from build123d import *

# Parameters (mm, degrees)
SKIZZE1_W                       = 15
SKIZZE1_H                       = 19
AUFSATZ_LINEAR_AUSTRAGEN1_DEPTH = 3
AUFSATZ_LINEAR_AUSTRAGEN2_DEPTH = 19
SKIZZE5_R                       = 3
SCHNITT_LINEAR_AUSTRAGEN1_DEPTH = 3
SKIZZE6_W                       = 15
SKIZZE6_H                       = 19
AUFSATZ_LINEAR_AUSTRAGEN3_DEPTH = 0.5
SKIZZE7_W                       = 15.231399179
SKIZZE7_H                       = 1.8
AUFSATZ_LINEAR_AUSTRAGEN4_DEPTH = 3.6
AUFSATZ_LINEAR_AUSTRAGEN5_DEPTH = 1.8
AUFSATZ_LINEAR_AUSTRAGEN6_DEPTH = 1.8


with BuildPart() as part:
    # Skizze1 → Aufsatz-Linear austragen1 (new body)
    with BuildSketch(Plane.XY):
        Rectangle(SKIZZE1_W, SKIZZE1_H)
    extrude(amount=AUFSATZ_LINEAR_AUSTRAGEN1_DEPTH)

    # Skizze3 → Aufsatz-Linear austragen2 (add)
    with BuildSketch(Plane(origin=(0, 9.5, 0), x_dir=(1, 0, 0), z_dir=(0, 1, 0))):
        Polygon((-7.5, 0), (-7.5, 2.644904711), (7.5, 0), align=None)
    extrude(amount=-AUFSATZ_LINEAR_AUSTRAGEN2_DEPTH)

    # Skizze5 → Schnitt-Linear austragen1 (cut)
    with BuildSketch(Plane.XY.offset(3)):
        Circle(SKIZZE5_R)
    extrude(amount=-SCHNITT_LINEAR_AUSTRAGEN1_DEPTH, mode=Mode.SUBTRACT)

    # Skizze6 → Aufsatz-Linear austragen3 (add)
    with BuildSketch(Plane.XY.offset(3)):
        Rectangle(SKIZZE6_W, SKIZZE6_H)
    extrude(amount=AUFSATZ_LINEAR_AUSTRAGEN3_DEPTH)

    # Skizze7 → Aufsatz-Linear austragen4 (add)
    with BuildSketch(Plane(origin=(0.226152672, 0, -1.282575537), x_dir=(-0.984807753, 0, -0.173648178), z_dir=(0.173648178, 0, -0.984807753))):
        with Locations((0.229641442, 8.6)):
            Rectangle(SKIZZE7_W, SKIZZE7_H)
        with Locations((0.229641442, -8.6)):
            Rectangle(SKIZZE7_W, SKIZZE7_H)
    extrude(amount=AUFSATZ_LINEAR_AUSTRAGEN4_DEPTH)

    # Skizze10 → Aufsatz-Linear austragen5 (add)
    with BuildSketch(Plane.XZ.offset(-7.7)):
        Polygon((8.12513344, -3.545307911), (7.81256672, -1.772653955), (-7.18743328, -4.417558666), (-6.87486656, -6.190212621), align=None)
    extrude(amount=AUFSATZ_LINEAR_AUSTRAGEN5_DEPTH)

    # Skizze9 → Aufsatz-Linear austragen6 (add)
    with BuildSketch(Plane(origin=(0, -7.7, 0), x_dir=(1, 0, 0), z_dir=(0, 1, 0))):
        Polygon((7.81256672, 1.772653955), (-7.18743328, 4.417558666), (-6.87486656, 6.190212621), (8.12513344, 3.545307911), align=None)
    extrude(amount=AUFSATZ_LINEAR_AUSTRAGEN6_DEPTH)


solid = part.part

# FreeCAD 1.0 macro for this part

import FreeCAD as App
import Part
import Sketcher

V = App.Vector
Q = App.Units.Quantity


def add_polygon(sketch, points):
    """Adds a closed chain of lines whose ends are joined by coincident constraints."""
    first, n = sketch.GeometryCount, len(points)
    for a, b in zip(points, points[1:] + points[:1]):
        sketch.addGeometry(Part.LineSegment(App.Vector(*a, 0), App.Vector(*b, 0)), False)
    for i in range(n):
        sketch.addConstraint(Sketcher.Constraint("Coincident", first + i, 2, first + (i + 1) % n, 1))

doc = App.newDocument("Part")
body = doc.addObject("PartDesign::Body", "Body")

# Sketch on XY plane
sketch1 = body.newObject("Sketcher::SketchObject", "Sketch")
sketch1.AttachmentSupport = (doc.getObject("XY_Plane"), [""])
sketch1.MapMode = "FlatFace"
add_polygon(sketch1, [(-8, 10), (-8, -10), (8, -10), (8, 10)])  # lines 0-3
sketch1.addConstraint(Sketcher.Constraint("Vertical", 0))
sketch1.addConstraint(Sketcher.Constraint("Horizontal", 1))
sketch1.addConstraint(Sketcher.Constraint("Vertical", 2))
sketch1.addConstraint(Sketcher.Constraint("Horizontal", 3))
sketch1.addConstraint(Sketcher.Constraint("Symmetric", 0, 2, 2, 2, -1, 1))
sketch1.addConstraint(Sketcher.Constraint("DistanceX", 1, 1, 1, 2, Q("15 mm")))
sketch1.addConstraint(Sketcher.Constraint("DistanceY", 0, 2, 0, 1, Q("19 mm")))
pad1 = body.newObject("PartDesign::Pad", "Pad")
pad1.Profile = sketch1
pad1.Length = 3

# Sketch on XZ plane
sketch2 = body.newObject("Sketcher::SketchObject", "Sketch001")
sketch2.AttachmentSupport = (doc.getObject("XZ_Plane"), [""])
sketch2.MapMode = "FlatFace"
sketch2.AttachmentOffset = App.Placement(V(0, 0, -9.5), App.Rotation())
add_polygon(sketch2, [(-7.5, -2.6), (-7.5, 0), (7.5, 0)])  # lines 0-2
sketch2.addConstraint(Sketcher.Constraint("Vertical", 0))
sketch2.addConstraint(Sketcher.Constraint("Horizontal", 1))
sketch2.addConstraint(Sketcher.Constraint("Symmetric", 0, 2, 1, 2, -1, 1))
sketch2.addConstraint(Sketcher.Constraint("DistanceX", 1, 1, 1, 2, Q("15 mm")))
sketch2.addConstraint(Sketcher.Constraint("Angle", 2, Q("-170 deg")))
pad2 = body.newObject("PartDesign::Pad", "Pad001")
pad2.Profile = sketch2
pad2.Length = 19

# Sketch on XY plane
sketch3 = body.newObject("Sketcher::SketchObject", "Sketch002")
sketch3.AttachmentSupport = (doc.getObject("XY_Plane"), [""])
sketch3.MapMode = "FlatFace"
sketch3.AttachmentOffset = App.Placement(V(0, 0, 3), App.Rotation())
sketch3.addGeometry(Part.Circle(V(0, 0, 0), V(0, 0, 1), 3), False)
sketch3.addConstraint(Sketcher.Constraint("Coincident", 0, 3, -1, 1))
sketch3.addConstraint(Sketcher.Constraint("Diameter", 0, Q("6 mm")))
pocket1 = body.newObject("PartDesign::Pocket", "Pocket")
pocket1.Profile = sketch3
pocket1.Length = 3

# Sketch on XY plane
sketch4 = body.newObject("Sketcher::SketchObject", "Sketch003")
sketch4.AttachmentSupport = (doc.getObject("XY_Plane"), [""])
sketch4.MapMode = "FlatFace"
sketch4.AttachmentOffset = App.Placement(V(0, 0, 3), App.Rotation())
add_polygon(sketch4, [(-8, 10), (-8, -10), (8, -10), (8, 10)])  # lines 0-3
sketch4.addConstraint(Sketcher.Constraint("Vertical", 0))
sketch4.addConstraint(Sketcher.Constraint("Horizontal", 1))
sketch4.addConstraint(Sketcher.Constraint("Vertical", 2))
sketch4.addConstraint(Sketcher.Constraint("Horizontal", 3))
sketch4.addConstraint(Sketcher.Constraint("Symmetric", 0, 2, 2, 2, -1, 1))
sketch4.addConstraint(Sketcher.Constraint("DistanceX", 1, 1, 1, 2, Q("15 mm")))
sketch4.addConstraint(Sketcher.Constraint("DistanceY", 0, 2, 0, 1, Q("19 mm")))
pad3 = body.newObject("PartDesign::Pad", "Pad002")
pad3.Profile = sketch4
pad3.Length = 0.5

# Sketch on an angled plane
sketch5 = body.newObject("Sketcher::SketchObject", "Sketch004")
sketch5.Placement = App.Placement(V(0.226153, 0, -1.282576), App.Rotation(V(-0.984807753, 0, -0.173648178), V(0, 1, 0), V(0.173648178, 0, -0.984807753), "ZXY"))
add_polygon(sketch5, [(-7.4, 9.5), (-7.4, 7.7), (7.8, 7.7), (7.8, 9.5)])  # lines 0-3
add_polygon(sketch5, [(-7.4, -7.7), (-7.4, -9.5), (7.8, -9.5), (7.8, -7.7)])  # lines 4-7
sketch5.addConstraint(Sketcher.Constraint("Vertical", 0))
sketch5.addConstraint(Sketcher.Constraint("Horizontal", 1))
sketch5.addConstraint(Sketcher.Constraint("Vertical", 2))
sketch5.addConstraint(Sketcher.Constraint("Horizontal", 3))
sketch5.addConstraint(Sketcher.Constraint("Vertical", 4))
sketch5.addConstraint(Sketcher.Constraint("Horizontal", 5))
sketch5.addConstraint(Sketcher.Constraint("Vertical", 6))
sketch5.addConstraint(Sketcher.Constraint("Horizontal", 7))
sketch5.addConstraint(Sketcher.Constraint("Symmetric", 3, 2, 4, 2, -1))
sketch5.addConstraint(Sketcher.Constraint("Symmetric", 1, 2, 6, 2, -1))
sketch5.addConstraint(Sketcher.Constraint("DistanceY", 0, 2, 0, 1, Q("1.8 mm")))
sketch5.addConstraint(Sketcher.Constraint("DistanceY", 4, 2, 3, 2, Q("19 mm")))
sketch5.addConstraint(Sketcher.Constraint("DistanceX", 1, 1, 1, 2, Q("15.231399 mm")))
sketch5.addConstraint(Sketcher.Constraint("DistanceX", 0, 2, -1, 1, Q("7.386058 mm")))
pad4 = body.newObject("PartDesign::Pad", "Pad003")
pad4.Profile = sketch5
pad4.Length = 3.6

# Sketch on XZ plane
sketch6 = body.newObject("Sketcher::SketchObject", "Sketch005")
sketch6.AttachmentSupport = (doc.getObject("XZ_Plane"), [""])
sketch6.MapMode = "FlatFace"
sketch6.AttachmentOffset = App.Placement(V(0, 0, -7.7), App.Rotation())
add_polygon(sketch6, [(8.1, -3.5), (7.8, -1.8), (-7.2, -4.4), (-6.9, -6.2)])  # lines 0-3
sketch6.addConstraint(Sketcher.Constraint("Perpendicular", 0, 1))
sketch6.addConstraint(Sketcher.Constraint("Perpendicular", 1, 2))
sketch6.addConstraint(Sketcher.Constraint("Perpendicular", 2, 3))
sketch6.addConstraint(Sketcher.Constraint("Angle", 0, Q("100 deg")))
sketch6.addConstraint(Sketcher.Constraint("DistanceX", 1, 2, 0, 2, Q("15 mm")))
sketch6.addConstraint(Sketcher.Constraint("Distance", 0, Q("1.8 mm")))
sketch6.addConstraint(Sketcher.Constraint("DistanceY", 1, 2, -1, 1, Q("4.417559 mm")))
sketch6.addConstraint(Sketcher.Constraint("DistanceX", -1, 1, 0, 2, Q("7.812567 mm")))
pad5 = body.newObject("PartDesign::Pad", "Pad004")
pad5.Profile = sketch6
pad5.Length = 1.8

# Sketch on XZ plane
sketch7 = body.newObject("Sketcher::SketchObject", "Sketch006")
sketch7.AttachmentSupport = (doc.getObject("XZ_Plane"), [""])
sketch7.MapMode = "FlatFace"
sketch7.AttachmentOffset = App.Placement(V(0, 0, 7.7), App.Rotation())
add_polygon(sketch7, [(-7.2, -4.4), (7.8, -1.8), (8.1, -3.5), (-6.9, -6.2)])  # lines 0-3
sketch7.addConstraint(Sketcher.Constraint("Perpendicular", 0, 1))
sketch7.addConstraint(Sketcher.Constraint("Perpendicular", 1, 2))
sketch7.addConstraint(Sketcher.Constraint("Perpendicular", 2, 3))
sketch7.addConstraint(Sketcher.Constraint("Angle", 0, Q("10 deg")))
sketch7.addConstraint(Sketcher.Constraint("DistanceX", 2, 2, 1, 2, Q("15 mm")))
sketch7.addConstraint(Sketcher.Constraint("Distance", 1, Q("1.8 mm")))
sketch7.addConstraint(Sketcher.Constraint("DistanceY", 3, 2, -1, 1, Q("4.417559 mm")))
sketch7.addConstraint(Sketcher.Constraint("DistanceX", -1, 1, 0, 2, Q("7.812567 mm")))
pad6 = body.newObject("PartDesign::Pad", "Pad005")
pad6.Profile = sketch7
pad6.Length = 1.8
pad6.Reversed = True

doc.recompute()
